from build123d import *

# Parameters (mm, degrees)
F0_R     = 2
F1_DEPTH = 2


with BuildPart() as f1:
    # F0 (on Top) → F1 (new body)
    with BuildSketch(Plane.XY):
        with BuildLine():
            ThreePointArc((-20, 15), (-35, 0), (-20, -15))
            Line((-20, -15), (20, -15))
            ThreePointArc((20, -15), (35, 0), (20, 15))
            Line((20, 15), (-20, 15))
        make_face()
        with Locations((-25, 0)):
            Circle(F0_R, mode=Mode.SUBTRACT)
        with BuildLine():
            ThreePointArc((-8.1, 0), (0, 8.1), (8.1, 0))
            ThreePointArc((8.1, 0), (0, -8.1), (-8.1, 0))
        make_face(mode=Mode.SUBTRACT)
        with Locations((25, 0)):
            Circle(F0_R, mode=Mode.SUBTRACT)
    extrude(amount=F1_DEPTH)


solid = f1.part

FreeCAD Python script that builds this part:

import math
import FreeCAD as App
import Part
import Sketcher
Q = App.Units.Quantity

doc = App.newDocument("Part")
body = doc.addObject("PartDesign::Body", "Body")

sketch1 = body.newObject("Sketcher::SketchObject", "Sketch")
sketch1.AttachmentSupport = (doc.getObject("XY_Plane"), [""])
sketch1.MapMode = "FlatFace"
sketch1.addGeometry(Part.ArcOfCircle(Part.Circle(App.Vector(-20, 0, 0), App.Vector(0, 0, 1), 15), math.radians(90), math.radians(270)), False)
sketch1.addGeometry(Part.LineSegment(App.Vector(-20, -15, 0), App.Vector(20, -15, 0)), False)
sketch1.addGeometry(Part.ArcOfCircle(Part.Circle(App.Vector(20, 0, 0), App.Vector(0, 0, 1), 15), math.radians(-90), math.radians(90)), False)
sketch1.addGeometry(Part.LineSegment(App.Vector(20, 15, 0), App.Vector(-20, 15, 0)), False)
sketch1.addGeometry(Part.Circle(App.Vector(-25, 0, 0), App.Vector(0, 0, 1), 2), False)
sketch1.addGeometry(Part.Circle(App.Vector(0, 0, 0), App.Vector(0, 0, 1), 8.1), False)
sketch1.addGeometry(Part.Circle(App.Vector(25, 0, 0), App.Vector(0, 0, 1), 2), False)
sketch1.addConstraint(Sketcher.Constraint("Tangent", 0, 2, 1, 1))
sketch1.addConstraint(Sketcher.Constraint("Tangent", 1, 2, 2, 1))
sketch1.addConstraint(Sketcher.Constraint("Tangent", 2, 2, 3, 1))
sketch1.addConstraint(Sketcher.Constraint("Tangent", 3, 2, 0, 1))
sketch1.addConstraint(Sketcher.Constraint("Horizontal", 1))
sketch1.addConstraint(Sketcher.Constraint("Horizontal", 3))
sketch1.addConstraint(Sketcher.Constraint("Coincident", 5, 3, -1, 1))
sketch1.addConstraint(Sketcher.Constraint("Equal", 4, 6))
sketch1.addConstraint(Sketcher.Constraint("Symmetric", 0, 3, 2, 3, -1, 1))
sketch1.addConstraint(Sketcher.Constraint("Symmetric", 4, 3, 6, 3, -1, 1))
sketch1.addConstraint(Sketcher.Constraint("PointOnObject", 4, 3, -1))
sketch1.addConstraint(Sketcher.Constraint("Diameter", 4, Q("4 mm")))
sketch1.addConstraint(Sketcher.Constraint("Radius", 0, Q("15 mm")))
sketch1.addConstraint(Sketcher.Constraint("Diameter", 5, Q("16.2 mm")))
sketch1.addConstraint(Sketcher.Constraint("DistanceX", 1, 1, 1, 2, Q("40 mm")))
sketch1.addConstraint(Sketcher.Constraint("DistanceX", 4, 3, -1, 1, Q("25 mm")))
pad1 = body.newObject("PartDesign::Pad", "Pad")
pad1.Profile = sketch1
pad1.Length = 2

doc.recompute()
